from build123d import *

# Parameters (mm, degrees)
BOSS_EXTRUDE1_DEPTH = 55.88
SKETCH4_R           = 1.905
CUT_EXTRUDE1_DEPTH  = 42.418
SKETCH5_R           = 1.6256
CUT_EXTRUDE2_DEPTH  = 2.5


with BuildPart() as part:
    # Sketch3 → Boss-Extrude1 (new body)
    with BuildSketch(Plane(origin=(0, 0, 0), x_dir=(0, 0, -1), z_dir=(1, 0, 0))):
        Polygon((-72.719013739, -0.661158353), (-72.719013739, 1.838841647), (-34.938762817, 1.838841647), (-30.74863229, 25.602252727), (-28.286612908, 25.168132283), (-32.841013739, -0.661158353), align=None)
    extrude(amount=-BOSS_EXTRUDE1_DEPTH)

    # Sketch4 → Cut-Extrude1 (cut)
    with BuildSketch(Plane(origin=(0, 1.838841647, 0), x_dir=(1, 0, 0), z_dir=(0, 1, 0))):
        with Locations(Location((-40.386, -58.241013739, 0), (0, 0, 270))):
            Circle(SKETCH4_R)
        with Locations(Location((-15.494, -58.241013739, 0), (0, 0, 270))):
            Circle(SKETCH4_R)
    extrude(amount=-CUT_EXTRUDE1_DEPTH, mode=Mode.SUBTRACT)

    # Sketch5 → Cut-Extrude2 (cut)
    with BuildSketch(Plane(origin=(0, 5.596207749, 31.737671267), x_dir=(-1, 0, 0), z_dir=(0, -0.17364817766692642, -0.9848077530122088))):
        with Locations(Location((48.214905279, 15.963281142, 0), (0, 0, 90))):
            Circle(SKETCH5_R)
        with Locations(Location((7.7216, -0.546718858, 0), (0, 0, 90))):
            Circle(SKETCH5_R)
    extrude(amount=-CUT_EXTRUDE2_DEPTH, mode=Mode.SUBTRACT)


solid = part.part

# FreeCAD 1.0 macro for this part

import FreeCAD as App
import Part
import Sketcher
from FreeCAD import Vector
Q = App.Units.Quantity


def add_polygon(sketch, points):
    """Adds a closed chain of lines whose ends are joined by coincident constraints."""
    first, n = sketch.GeometryCount, len(points)
    for a, b in zip(points, points[1:] + points[:1]):
        sketch.addGeometry(Part.LineSegment(App.Vector(*a, 0), App.Vector(*b, 0)), False)
    for i in range(n):
        sketch.addConstraint(Sketcher.Constraint("Coincident", first + i, 2, first + (i + 1) % n, 1))

doc = App.newDocument("Part")
body = doc.addObject("PartDesign::Body", "Body")

# Sketch on YZ plane
sketch1 = body.newObject("Sketcher::SketchObject", "Sketch")
sketch1.AttachmentSupport = (doc.getObject("YZ_Plane"), [""])
sketch1.MapMode = "FlatFace"
add_polygon(sketch1, [(1.838842, 72.719014), (-0.661158, 72.719014), (-0.661158, 32.841014), (25.168132, 28.286613), (25.602253, 30.748632), (1.838842, 34.938763)])  # lines 0-5
sketch1.addConstraint([
    Sketcher.Constraint("Horizontal", 0),
    Sketcher.Constraint("Vertical", 1),
    Sketcher.Constraint("Vertical", 5),
    Sketcher.Constraint("Perpendicular", 2, 3),
    Sketcher.Constraint("Perpendicular", 3, 4),
    Sketcher.Constraint("Angle", 2, Q("-10 deg")),
    Sketcher.Constraint("DistanceY", 1, 2, 1, 1, Q("1.57 in")),
    Sketcher.Constraint("Distance", 4, Q("0.95 in")),
    Sketcher.Constraint("DistanceX", 0, 2, 0, 1, 2.5),
    Sketcher.Constraint("Distance", 3, 2.5),
    Sketcher.Constraint("DistanceX", 0, 2, -1, 1, 0.661158),
    Sketcher.Constraint("DistanceY", -1, 1, 0, 2, 72.719014),
])
pad1 = body.newObject("PartDesign::Pad", "Pad")
pad1.Profile = sketch1
pad1.Length = Q("2.2 in")
pad1.Reversed = True

# Sketch on XZ plane
sketch2 = body.newObject("Sketcher::SketchObject", "Sketch001")
sketch2.AttachmentSupport = (doc.getObject("XZ_Plane"), [""])
sketch2.MapMode = "FlatFace"
sketch2.AttachmentOffset = App.Placement(Vector(0, 0, -1.838842), App.Rotation())
sketch2.addGeometry([
    Part.Circle(Vector(-40.386, 58.241014, 0), Vector(0, 0, 1), 1.905),
    Part.Circle(Vector(-15.494, 58.241014, 0), Vector(0, 0, 1), 1.905),
], False)
sketch2.addConstraint([
    Sketcher.Constraint("Equal", 0, 1),
    Sketcher.Constraint("Horizontal", 0, 3, 1, 3),
    Sketcher.Constraint("Diameter", 0, Q("0.15 in")),
    Sketcher.Constraint("DistanceX", 0, 3, -1, 1, Q("1.59 in")),
    Sketcher.Constraint("DistanceX", 1, 3, -1, 1, Q("0.61 in")),
    Sketcher.Constraint("DistanceY", -1, 1, 0, 3, 58.241014),
])
pocket1 = body.newObject("PartDesign::Pocket", "Pocket")
pocket1.Profile = sketch2
pocket1.Length = Q("1.67 in")
pocket1.Reversed = True

# Sketch on an angled plane
sketch3 = body.newObject("Sketcher::SketchObject", "Sketch002")
sketch3.Placement = App.Placement(Vector(0, 5.596208, 31.737671), App.Rotation(Vector(-1, 0, 0), Vector(0, 0.984807753, -0.173648178), Vector(0, -0.173648178, -0.984807753), "ZXY"))
sketch3.addGeometry([
    Part.Circle(Vector(48.214905, 15.963281, 0), Vector(0, 0, 1), 1.6256),
    Part.Circle(Vector(7.7216, -0.546719, 0), Vector(0, 0, 1), 1.6256),
], False)
sketch3.addConstraint([
    Sketcher.Constraint("Equal", 0, 1),
    Sketcher.Constraint("Diameter", 0, Q("0.128 in")),
    Sketcher.Constraint("DistanceY", 1, 3, 0, 3, Q("0.65 in")),
    Sketcher.Constraint("DistanceX", -1, 1, 1, 3, Q("0.304 in")),
    Sketcher.Constraint("DistanceY", -1, 1, 0, 3, 15.963281),
    Sketcher.Constraint("DistanceX", -1, 1, 0, 3, 48.214905),
])
pocket2 = body.newObject("PartDesign::Pocket", "Pocket001")
pocket2.Profile = sketch3
pocket2.Length = 2.5

doc.recompute()
